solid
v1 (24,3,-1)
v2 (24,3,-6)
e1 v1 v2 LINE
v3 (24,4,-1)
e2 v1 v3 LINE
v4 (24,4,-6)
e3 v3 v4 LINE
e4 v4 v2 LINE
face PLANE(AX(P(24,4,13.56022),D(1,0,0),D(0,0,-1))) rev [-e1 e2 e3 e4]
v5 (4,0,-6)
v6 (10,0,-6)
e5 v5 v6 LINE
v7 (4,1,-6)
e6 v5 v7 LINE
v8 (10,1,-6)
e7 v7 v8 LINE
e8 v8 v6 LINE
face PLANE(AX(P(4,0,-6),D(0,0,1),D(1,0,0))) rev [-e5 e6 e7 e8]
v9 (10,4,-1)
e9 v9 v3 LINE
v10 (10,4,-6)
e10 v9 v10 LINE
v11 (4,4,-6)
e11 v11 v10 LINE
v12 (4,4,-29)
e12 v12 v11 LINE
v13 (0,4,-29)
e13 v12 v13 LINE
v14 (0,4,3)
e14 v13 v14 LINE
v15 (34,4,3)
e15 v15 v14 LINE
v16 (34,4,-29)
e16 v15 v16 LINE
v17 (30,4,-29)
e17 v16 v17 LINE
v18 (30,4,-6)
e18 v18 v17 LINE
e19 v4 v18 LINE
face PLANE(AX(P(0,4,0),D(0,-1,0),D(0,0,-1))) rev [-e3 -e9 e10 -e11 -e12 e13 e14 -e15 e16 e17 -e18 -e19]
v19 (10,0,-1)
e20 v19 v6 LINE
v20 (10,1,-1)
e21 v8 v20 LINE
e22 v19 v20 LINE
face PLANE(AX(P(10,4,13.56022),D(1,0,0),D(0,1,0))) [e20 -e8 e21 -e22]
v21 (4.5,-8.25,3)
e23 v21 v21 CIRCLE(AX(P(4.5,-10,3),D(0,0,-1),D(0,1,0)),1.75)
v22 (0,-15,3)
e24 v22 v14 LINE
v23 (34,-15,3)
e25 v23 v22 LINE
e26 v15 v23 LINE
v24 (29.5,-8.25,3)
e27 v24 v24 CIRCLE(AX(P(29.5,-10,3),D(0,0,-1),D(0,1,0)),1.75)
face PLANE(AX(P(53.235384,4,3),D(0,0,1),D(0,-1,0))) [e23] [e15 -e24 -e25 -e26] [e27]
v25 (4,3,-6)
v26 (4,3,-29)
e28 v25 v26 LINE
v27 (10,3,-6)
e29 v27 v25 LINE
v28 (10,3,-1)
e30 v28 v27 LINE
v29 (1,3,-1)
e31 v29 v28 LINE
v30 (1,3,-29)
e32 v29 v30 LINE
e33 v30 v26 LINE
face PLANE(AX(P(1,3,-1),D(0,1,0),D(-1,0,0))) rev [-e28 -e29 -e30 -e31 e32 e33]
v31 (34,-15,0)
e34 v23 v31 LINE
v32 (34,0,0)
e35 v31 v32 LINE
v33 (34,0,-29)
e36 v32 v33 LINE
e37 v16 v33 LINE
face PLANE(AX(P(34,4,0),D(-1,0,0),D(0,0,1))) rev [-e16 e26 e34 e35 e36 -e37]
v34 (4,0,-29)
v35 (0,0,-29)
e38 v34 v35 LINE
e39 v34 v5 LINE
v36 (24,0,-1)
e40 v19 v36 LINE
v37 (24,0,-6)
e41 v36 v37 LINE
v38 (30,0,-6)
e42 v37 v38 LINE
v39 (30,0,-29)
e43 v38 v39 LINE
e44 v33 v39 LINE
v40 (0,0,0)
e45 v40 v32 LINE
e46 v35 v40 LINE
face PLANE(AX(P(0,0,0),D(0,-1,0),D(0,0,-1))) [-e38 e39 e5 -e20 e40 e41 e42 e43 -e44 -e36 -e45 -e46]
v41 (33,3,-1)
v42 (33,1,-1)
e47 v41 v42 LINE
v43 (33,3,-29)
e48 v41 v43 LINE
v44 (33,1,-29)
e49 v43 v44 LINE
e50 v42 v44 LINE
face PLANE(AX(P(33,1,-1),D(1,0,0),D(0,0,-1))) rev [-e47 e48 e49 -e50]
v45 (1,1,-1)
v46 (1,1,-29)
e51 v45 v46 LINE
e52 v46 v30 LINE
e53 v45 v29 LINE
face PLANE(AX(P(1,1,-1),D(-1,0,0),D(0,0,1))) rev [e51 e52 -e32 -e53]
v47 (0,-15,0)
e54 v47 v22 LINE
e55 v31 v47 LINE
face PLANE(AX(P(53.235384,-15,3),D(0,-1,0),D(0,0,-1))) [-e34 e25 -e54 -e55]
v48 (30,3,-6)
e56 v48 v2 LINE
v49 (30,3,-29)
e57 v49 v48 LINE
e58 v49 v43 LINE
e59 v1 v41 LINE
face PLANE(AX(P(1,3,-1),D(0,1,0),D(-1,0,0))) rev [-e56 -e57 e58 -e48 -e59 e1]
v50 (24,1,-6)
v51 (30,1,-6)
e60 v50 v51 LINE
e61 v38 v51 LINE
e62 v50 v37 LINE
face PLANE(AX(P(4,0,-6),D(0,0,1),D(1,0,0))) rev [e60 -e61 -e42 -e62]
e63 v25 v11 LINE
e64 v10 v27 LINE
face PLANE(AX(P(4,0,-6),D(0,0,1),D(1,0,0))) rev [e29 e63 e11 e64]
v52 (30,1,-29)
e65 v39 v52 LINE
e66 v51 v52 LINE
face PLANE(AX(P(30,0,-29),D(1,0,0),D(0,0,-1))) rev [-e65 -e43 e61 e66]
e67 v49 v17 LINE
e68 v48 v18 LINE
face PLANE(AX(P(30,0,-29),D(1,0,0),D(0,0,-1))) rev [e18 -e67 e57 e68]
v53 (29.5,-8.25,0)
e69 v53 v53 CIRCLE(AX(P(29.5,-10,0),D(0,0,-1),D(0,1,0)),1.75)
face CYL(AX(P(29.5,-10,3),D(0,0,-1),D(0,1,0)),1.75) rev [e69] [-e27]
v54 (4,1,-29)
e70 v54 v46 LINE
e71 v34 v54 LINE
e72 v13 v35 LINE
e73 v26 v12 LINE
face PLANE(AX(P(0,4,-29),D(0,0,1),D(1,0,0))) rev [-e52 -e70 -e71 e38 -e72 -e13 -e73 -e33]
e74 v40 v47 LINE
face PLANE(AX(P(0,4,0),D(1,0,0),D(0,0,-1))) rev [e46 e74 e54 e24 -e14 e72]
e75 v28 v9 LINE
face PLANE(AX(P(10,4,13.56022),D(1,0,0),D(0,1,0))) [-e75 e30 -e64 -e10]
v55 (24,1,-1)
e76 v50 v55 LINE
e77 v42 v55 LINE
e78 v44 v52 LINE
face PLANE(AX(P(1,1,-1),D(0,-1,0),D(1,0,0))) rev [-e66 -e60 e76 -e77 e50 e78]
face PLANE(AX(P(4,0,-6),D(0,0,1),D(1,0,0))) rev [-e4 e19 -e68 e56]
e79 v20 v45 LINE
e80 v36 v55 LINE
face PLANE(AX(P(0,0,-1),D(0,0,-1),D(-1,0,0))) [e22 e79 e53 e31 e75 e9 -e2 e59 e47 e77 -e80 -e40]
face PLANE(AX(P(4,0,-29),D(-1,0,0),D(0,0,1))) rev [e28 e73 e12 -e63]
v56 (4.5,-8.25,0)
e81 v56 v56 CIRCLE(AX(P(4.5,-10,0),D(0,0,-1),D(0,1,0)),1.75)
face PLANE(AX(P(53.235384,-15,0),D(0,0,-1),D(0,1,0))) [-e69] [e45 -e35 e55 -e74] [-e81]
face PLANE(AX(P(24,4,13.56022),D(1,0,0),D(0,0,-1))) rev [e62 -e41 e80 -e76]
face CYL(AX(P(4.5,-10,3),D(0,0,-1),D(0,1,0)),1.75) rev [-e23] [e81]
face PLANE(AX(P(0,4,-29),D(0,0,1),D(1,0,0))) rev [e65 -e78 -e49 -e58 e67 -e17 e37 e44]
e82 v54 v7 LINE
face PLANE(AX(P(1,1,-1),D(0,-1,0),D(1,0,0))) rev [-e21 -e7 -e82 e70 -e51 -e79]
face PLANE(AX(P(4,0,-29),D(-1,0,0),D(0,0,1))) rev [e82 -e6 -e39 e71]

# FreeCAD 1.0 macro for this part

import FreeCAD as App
import Part
import Sketcher
from FreeCAD import Vector
Q = App.Units.Quantity

doc = App.newDocument("Part")
body = doc.addObject("PartDesign::Body", "Body")

# Sketch on XZ plane
sketch1 = body.newObject("Sketcher::SketchObject", "Sketch")
sketch1.AttachmentSupport = (doc.getObject("XZ_Plane"), [""])
sketch1.MapMode = "FlatFace"
sketch1.addGeometry([
    Part.LineSegment(Vector(0, -29, 0), Vector(0, 0, 0)),
    Part.LineSegment(Vector(0, 0, 0), Vector(34, 0, 0)),
    Part.LineSegment(Vector(34, 0, 0), Vector(34, -29, 0)),
    Part.LineSegment(Vector(34, -29, 0), Vector(0, -29, 0)),
], False)
sketch1.addConstraint([
    Sketcher.Constraint("Coincident", 0, 2, 1, 1),
    Sketcher.Constraint("Coincident", 1, 2, 2, 1),
    Sketcher.Constraint("Coincident", 2, 2, 3, 1),
    Sketcher.Constraint("Coincident", 3, 2, 0, 1),
    Sketcher.Constraint("Vertical", 0),
    Sketcher.Constraint("Horizontal", 1),
    Sketcher.Constraint("Vertical", 2),
    Sketcher.Constraint("Horizontal", 3),
    Sketcher.Constraint("Coincident", 0, 2, -1, 1),
    Sketcher.Constraint("DistanceX", 1, 1, 1, 2, Q("34 mm")),
    Sketcher.Constraint("DistanceY", 0, 1, 0, 2, Q("29 mm")),
])
pad1 = body.newObject("PartDesign::Pad", "Pad")
pad1.Profile = sketch1
pad1.Length = 4
pad1.Reversed = True

# Sketch on XZ plane
sketch2 = body.newObject("Sketcher::SketchObject", "Sketch001")
sketch2.AttachmentSupport = (doc.getObject("XZ_Plane"), [""])
sketch2.MapMode = "FlatFace"
sketch2.AttachmentOffset = App.Placement(Vector(0, 0, -4), App.Rotation())
sketch2.addGeometry([
    Part.LineSegment(Vector(4, -29, 0), Vector(4, -6, 0)),
    Part.LineSegment(Vector(4, -6, 0), Vector(30, -6, 0)),
    Part.LineSegment(Vector(30, -6, 0), Vector(30, -29, 0)),
    Part.LineSegment(Vector(30, -29, 0), Vector(4, -29, 0)),
], False)
sketch2.addConstraint([
    Sketcher.Constraint("Coincident", 0, 2, 1, 1),
    Sketcher.Constraint("Coincident", 1, 2, 2, 1),
    Sketcher.Constraint("Coincident", 2, 2, 3, 1),
    Sketcher.Constraint("Coincident", 3, 2, 0, 1),
    Sketcher.Constraint("Vertical", 0),
    Sketcher.Constraint("Horizontal", 1),
    Sketcher.Constraint("Vertical", 2),
    Sketcher.Constraint("Horizontal", 3),
    Sketcher.Constraint("DistanceX", 1, 1, 1, 2, Q("26 mm")),
    Sketcher.Constraint("DistanceY", 0, 1, 0, 2, Q("23 mm")),
    Sketcher.Constraint("DistanceX", -1, 1, 0, 2, Q("4 mm")),
    Sketcher.Constraint("DistanceY", 0, 2, -1, 1, Q("6 mm")),
])
pocket1 = body.newObject("PartDesign::Pocket", "Pocket")
pocket1.Profile = sketch2
pocket1.Type = "ThroughAll"
pocket1.Reversed = True

# Sketch on XY plane
sketch3 = body.newObject("Sketcher::SketchObject", "Sketch002")
sketch3.AttachmentSupport = (doc.getObject("XY_Plane"), [""])
sketch3.MapMode = "FlatFace"
sketch3.AttachmentOffset = App.Placement(Vector(0, 0, -29), App.Rotation())
sketch3.addGeometry([
    Part.LineSegment(Vector(33, 3, 0), Vector(33, 1, 0)),
    Part.LineSegment(Vector(33, 1, 0), Vector(1, 1, 0)),
    Part.LineSegment(Vector(1, 1, 0), Vector(1, 3, 0)),
    Part.LineSegment(Vector(1, 3, 0), Vector(33, 3, 0)),
], False)
sketch3.addConstraint([
    Sketcher.Constraint("Coincident", 0, 2, 1, 1),
    Sketcher.Constraint("Coincident", 1, 2, 2, 1),
    Sketcher.Constraint("Coincident", 2, 2, 3, 1),
    Sketcher.Constraint("Coincident", 3, 2, 0, 1),
    Sketcher.Constraint("Vertical", 0),
    Sketcher.Constraint("Horizontal", 1),
    Sketcher.Constraint("Vertical", 2),
    Sketcher.Constraint("Horizontal", 3),
    Sketcher.Constraint("DistanceX", 1, 2, 1, 1, Q("32 mm")),
    Sketcher.Constraint("DistanceY", 0, 2, 0, 1, Q("2 mm")),
    Sketcher.Constraint("DistanceX", -1, 1, 0, 2, Q("33 mm")),
    Sketcher.Constraint("DistanceY", -1, 1, 0, 2, Q("1 mm")),
])
pocket2 = body.newObject("PartDesign::Pocket", "Pocket001")
pocket2.Profile = sketch3
pocket2.Length = 28
pocket2.Reversed = True

# Sketch on YZ plane
sketch4 = body.newObject("Sketcher::SketchObject", "Sketch003")
sketch4.AttachmentSupport = (doc.getObject("YZ_Plane"), [""])
sketch4.MapMode = "FlatFace"
sketch4.addGeometry([
    Part.LineSegment(Vector(4, 3, 0), Vector(4, 0, 0)),
    Part.LineSegment(Vector(4, 0, 0), Vector(-15, 0, 0)),
    Part.LineSegment(Vector(-15, 0, 0), Vector(-15, 3, 0)),
    Part.LineSegment(Vector(-15, 3, 0), Vector(4, 3, 0)),
], False)
sketch4.addConstraint([
    Sketcher.Constraint("Coincident", 0, 2, 1, 1),
    Sketcher.Constraint("Coincident", 1, 2, 2, 1),
    Sketcher.Constraint("Coincident", 2, 2, 3, 1),
    Sketcher.Constraint("Coincident", 3, 2, 0, 1),
    Sketcher.Constraint("Vertical", 0),
    Sketcher.Constraint("Horizontal", 1),
    Sketcher.Constraint("Vertical", 2),
    Sketcher.Constraint("Horizontal", 3),
    Sketcher.Constraint("PointOnObject", 0, 2, -1),
    Sketcher.Constraint("DistanceX", 1, 2, 1, 1, Q("19 mm")),
    Sketcher.Constraint("DistanceY", 0, 2, 0, 1, Q("3 mm")),
    Sketcher.Constraint("DistanceX", -1, 1, 0, 2, Q("4 mm")),
])
pad2 = body.newObject("PartDesign::Pad", "Pad001")
pad2.Profile = sketch4
pad2.Length = 34

# Sketch on XY plane
sketch5 = body.newObject("Sketcher::SketchObject", "Sketch004")
sketch5.AttachmentSupport = (doc.getObject("XY_Plane"), [""])
sketch5.MapMode = "FlatFace"
sketch5.addGeometry([
    Part.Circle(Vector(29.5, -10, 0), Vector(0, 0, 1), 1.8),
    Part.Circle(Vector(4.5, -10, 0), Vector(0, 0, 1), 1.8),
], False)
sketch5.addConstraint([
    Sketcher.Constraint("Equal", 0, 1),
    Sketcher.Constraint("Horizontal", 0, 3, 1, 3),
    Sketcher.Constraint("Diameter", 0, Q("3.5 mm")),
    Sketcher.Constraint("DistanceY", 0, 3, -1, 1, Q("10 mm")),
    Sketcher.Constraint("DistanceX", 1, 3, 0, 3, Q("25 mm")),
    Sketcher.Constraint("DistanceX", -1, 1, 0, 3, Q("29.5 mm")),
])
pocket3 = body.newObject("PartDesign::Pocket", "Pocket002")
pocket3.Profile = sketch5
pocket3.Type = "ThroughAll"
pocket3.Reversed = True

# Sketch on XY plane
sketch6 = body.newObject("Sketcher::SketchObject", "Sketch005")
sketch6.AttachmentSupport = (doc.getObject("XY_Plane"), [""])
sketch6.MapMode = "FlatFace"
sketch6.AttachmentOffset = App.Placement(Vector(0, 0, -6), App.Rotation())
sketch6.addGeometry([
    Part.LineSegment(Vector(24, 4, 0), Vector(24, 0, 0)),
    Part.LineSegment(Vector(24, 0, 0), Vector(10, 0, 0)),
    Part.LineSegment(Vector(10, 0, 0), Vector(10, 4, 0)),
    Part.LineSegment(Vector(10, 4, 0), Vector(24, 4, 0)),
], False)
sketch6.addConstraint([
    Sketcher.Constraint("Coincident", 0, 2, 1, 1),
    Sketcher.Constraint("Coincident", 1, 2, 2, 1),
    Sketcher.Constraint("Coincident", 2, 2, 3, 1),
    Sketcher.Constraint("Coincident", 3, 2, 0, 1),
    Sketcher.Constraint("Vertical", 0),
    Sketcher.Constraint("Horizontal", 1),
    Sketcher.Constraint("Vertical", 2),
    Sketcher.Constraint("Horizontal", 3),
    Sketcher.Constraint("PointOnObject", 0, 2, -1),
    Sketcher.Constraint("DistanceX", 1, 2, 1, 1, Q("14 mm")),
    Sketcher.Constraint("DistanceY", 0, 2, 0, 1, Q("4 mm")),
    Sketcher.Constraint("DistanceX", -1, 1, 0, 2, Q("24 mm")),
])
pocket4 = body.newObject("PartDesign::Pocket", "Pocket003")
pocket4.Profile = sketch6
pocket4.Length = 5
pocket4.Reversed = True

doc.recompute()
